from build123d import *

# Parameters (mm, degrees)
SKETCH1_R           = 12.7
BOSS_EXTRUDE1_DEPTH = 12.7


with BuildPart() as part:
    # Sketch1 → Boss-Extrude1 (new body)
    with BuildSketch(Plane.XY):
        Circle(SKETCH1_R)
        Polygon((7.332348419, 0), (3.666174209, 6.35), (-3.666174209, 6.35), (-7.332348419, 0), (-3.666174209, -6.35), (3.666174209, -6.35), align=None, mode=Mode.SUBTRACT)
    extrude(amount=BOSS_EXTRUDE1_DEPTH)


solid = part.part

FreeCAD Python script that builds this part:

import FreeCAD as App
import Part
import Sketcher
from FreeCAD import Vector
Q = App.Units.Quantity

doc = App.newDocument("Part")
body = doc.addObject("PartDesign::Body", "Body")

# Sketch on XY plane
sketch1 = body.newObject("Sketcher::SketchObject", "Sketch")
sketch1.AttachmentSupport = (doc.getObject("XY_Plane"), [""])
sketch1.MapMode = "FlatFace"
sketch1.addGeometry([
    Part.Circle(Vector(0, 0, 0), Vector(0, 0, 1), 13),  # 0
    Part.LineSegment(Vector(4, 6, 0), Vector(7, 0, 0)),  # 1
    Part.LineSegment(Vector(7, 0, 0), Vector(4, -6, 0)),  # 2
    Part.LineSegment(Vector(4, -6, 0), Vector(-4, -6, 0)),  # 3
    Part.LineSegment(Vector(-4, -6, 0), Vector(-7, 0, 0)),  # 4
    Part.LineSegment(Vector(-7, 0, 0), Vector(-4, 6, 0)),  # 5
    Part.LineSegment(Vector(-4, 6, 0), Vector(4, 6, 0)),  # 6
], False)
sketch1.addConstraint([
    Sketcher.Constraint("Coincident", 1, 2, 2, 1),
    Sketcher.Constraint("Coincident", 2, 2, 3, 1),
    Sketcher.Constraint("Coincident", 3, 2, 4, 1),
    Sketcher.Constraint("Coincident", 4, 2, 5, 1),
    Sketcher.Constraint("Coincident", 5, 2, 6, 1),
    Sketcher.Constraint("Coincident", 6, 2, 1, 1),
    Sketcher.Constraint("Horizontal", 3),
    Sketcher.Constraint("Horizontal", 6),
    Sketcher.Constraint("Coincident", 0, 3, -1, 1),
    Sketcher.Constraint("Symmetric", 1, 2, 4, 2, -1, 1),
    Sketcher.Constraint("Symmetric", 2, 2, 5, 2, -1, 1),
    Sketcher.Constraint("PointOnObject", 1, 2, -1),
    Sketcher.Constraint("Parallel", 1, 4),
    Sketcher.Constraint("Vertical", 3, 2, 5, 2),
    Sketcher.Constraint("Diameter", 0, Q("1 in")),
    Sketcher.Constraint("Angle", 1, Q("-60 deg")),
    Sketcher.Constraint("DistanceY", 3, 2, 5, 2, Q("0.5 in")),
    Sketcher.Constraint("DistanceX", 3, 2, 3, 1, Q("7.332348 mm")),
])
pad1 = body.newObject("PartDesign::Pad", "Pad")
pad1.Profile = sketch1
pad1.Length = Q("0.5 in")

doc.recompute()
